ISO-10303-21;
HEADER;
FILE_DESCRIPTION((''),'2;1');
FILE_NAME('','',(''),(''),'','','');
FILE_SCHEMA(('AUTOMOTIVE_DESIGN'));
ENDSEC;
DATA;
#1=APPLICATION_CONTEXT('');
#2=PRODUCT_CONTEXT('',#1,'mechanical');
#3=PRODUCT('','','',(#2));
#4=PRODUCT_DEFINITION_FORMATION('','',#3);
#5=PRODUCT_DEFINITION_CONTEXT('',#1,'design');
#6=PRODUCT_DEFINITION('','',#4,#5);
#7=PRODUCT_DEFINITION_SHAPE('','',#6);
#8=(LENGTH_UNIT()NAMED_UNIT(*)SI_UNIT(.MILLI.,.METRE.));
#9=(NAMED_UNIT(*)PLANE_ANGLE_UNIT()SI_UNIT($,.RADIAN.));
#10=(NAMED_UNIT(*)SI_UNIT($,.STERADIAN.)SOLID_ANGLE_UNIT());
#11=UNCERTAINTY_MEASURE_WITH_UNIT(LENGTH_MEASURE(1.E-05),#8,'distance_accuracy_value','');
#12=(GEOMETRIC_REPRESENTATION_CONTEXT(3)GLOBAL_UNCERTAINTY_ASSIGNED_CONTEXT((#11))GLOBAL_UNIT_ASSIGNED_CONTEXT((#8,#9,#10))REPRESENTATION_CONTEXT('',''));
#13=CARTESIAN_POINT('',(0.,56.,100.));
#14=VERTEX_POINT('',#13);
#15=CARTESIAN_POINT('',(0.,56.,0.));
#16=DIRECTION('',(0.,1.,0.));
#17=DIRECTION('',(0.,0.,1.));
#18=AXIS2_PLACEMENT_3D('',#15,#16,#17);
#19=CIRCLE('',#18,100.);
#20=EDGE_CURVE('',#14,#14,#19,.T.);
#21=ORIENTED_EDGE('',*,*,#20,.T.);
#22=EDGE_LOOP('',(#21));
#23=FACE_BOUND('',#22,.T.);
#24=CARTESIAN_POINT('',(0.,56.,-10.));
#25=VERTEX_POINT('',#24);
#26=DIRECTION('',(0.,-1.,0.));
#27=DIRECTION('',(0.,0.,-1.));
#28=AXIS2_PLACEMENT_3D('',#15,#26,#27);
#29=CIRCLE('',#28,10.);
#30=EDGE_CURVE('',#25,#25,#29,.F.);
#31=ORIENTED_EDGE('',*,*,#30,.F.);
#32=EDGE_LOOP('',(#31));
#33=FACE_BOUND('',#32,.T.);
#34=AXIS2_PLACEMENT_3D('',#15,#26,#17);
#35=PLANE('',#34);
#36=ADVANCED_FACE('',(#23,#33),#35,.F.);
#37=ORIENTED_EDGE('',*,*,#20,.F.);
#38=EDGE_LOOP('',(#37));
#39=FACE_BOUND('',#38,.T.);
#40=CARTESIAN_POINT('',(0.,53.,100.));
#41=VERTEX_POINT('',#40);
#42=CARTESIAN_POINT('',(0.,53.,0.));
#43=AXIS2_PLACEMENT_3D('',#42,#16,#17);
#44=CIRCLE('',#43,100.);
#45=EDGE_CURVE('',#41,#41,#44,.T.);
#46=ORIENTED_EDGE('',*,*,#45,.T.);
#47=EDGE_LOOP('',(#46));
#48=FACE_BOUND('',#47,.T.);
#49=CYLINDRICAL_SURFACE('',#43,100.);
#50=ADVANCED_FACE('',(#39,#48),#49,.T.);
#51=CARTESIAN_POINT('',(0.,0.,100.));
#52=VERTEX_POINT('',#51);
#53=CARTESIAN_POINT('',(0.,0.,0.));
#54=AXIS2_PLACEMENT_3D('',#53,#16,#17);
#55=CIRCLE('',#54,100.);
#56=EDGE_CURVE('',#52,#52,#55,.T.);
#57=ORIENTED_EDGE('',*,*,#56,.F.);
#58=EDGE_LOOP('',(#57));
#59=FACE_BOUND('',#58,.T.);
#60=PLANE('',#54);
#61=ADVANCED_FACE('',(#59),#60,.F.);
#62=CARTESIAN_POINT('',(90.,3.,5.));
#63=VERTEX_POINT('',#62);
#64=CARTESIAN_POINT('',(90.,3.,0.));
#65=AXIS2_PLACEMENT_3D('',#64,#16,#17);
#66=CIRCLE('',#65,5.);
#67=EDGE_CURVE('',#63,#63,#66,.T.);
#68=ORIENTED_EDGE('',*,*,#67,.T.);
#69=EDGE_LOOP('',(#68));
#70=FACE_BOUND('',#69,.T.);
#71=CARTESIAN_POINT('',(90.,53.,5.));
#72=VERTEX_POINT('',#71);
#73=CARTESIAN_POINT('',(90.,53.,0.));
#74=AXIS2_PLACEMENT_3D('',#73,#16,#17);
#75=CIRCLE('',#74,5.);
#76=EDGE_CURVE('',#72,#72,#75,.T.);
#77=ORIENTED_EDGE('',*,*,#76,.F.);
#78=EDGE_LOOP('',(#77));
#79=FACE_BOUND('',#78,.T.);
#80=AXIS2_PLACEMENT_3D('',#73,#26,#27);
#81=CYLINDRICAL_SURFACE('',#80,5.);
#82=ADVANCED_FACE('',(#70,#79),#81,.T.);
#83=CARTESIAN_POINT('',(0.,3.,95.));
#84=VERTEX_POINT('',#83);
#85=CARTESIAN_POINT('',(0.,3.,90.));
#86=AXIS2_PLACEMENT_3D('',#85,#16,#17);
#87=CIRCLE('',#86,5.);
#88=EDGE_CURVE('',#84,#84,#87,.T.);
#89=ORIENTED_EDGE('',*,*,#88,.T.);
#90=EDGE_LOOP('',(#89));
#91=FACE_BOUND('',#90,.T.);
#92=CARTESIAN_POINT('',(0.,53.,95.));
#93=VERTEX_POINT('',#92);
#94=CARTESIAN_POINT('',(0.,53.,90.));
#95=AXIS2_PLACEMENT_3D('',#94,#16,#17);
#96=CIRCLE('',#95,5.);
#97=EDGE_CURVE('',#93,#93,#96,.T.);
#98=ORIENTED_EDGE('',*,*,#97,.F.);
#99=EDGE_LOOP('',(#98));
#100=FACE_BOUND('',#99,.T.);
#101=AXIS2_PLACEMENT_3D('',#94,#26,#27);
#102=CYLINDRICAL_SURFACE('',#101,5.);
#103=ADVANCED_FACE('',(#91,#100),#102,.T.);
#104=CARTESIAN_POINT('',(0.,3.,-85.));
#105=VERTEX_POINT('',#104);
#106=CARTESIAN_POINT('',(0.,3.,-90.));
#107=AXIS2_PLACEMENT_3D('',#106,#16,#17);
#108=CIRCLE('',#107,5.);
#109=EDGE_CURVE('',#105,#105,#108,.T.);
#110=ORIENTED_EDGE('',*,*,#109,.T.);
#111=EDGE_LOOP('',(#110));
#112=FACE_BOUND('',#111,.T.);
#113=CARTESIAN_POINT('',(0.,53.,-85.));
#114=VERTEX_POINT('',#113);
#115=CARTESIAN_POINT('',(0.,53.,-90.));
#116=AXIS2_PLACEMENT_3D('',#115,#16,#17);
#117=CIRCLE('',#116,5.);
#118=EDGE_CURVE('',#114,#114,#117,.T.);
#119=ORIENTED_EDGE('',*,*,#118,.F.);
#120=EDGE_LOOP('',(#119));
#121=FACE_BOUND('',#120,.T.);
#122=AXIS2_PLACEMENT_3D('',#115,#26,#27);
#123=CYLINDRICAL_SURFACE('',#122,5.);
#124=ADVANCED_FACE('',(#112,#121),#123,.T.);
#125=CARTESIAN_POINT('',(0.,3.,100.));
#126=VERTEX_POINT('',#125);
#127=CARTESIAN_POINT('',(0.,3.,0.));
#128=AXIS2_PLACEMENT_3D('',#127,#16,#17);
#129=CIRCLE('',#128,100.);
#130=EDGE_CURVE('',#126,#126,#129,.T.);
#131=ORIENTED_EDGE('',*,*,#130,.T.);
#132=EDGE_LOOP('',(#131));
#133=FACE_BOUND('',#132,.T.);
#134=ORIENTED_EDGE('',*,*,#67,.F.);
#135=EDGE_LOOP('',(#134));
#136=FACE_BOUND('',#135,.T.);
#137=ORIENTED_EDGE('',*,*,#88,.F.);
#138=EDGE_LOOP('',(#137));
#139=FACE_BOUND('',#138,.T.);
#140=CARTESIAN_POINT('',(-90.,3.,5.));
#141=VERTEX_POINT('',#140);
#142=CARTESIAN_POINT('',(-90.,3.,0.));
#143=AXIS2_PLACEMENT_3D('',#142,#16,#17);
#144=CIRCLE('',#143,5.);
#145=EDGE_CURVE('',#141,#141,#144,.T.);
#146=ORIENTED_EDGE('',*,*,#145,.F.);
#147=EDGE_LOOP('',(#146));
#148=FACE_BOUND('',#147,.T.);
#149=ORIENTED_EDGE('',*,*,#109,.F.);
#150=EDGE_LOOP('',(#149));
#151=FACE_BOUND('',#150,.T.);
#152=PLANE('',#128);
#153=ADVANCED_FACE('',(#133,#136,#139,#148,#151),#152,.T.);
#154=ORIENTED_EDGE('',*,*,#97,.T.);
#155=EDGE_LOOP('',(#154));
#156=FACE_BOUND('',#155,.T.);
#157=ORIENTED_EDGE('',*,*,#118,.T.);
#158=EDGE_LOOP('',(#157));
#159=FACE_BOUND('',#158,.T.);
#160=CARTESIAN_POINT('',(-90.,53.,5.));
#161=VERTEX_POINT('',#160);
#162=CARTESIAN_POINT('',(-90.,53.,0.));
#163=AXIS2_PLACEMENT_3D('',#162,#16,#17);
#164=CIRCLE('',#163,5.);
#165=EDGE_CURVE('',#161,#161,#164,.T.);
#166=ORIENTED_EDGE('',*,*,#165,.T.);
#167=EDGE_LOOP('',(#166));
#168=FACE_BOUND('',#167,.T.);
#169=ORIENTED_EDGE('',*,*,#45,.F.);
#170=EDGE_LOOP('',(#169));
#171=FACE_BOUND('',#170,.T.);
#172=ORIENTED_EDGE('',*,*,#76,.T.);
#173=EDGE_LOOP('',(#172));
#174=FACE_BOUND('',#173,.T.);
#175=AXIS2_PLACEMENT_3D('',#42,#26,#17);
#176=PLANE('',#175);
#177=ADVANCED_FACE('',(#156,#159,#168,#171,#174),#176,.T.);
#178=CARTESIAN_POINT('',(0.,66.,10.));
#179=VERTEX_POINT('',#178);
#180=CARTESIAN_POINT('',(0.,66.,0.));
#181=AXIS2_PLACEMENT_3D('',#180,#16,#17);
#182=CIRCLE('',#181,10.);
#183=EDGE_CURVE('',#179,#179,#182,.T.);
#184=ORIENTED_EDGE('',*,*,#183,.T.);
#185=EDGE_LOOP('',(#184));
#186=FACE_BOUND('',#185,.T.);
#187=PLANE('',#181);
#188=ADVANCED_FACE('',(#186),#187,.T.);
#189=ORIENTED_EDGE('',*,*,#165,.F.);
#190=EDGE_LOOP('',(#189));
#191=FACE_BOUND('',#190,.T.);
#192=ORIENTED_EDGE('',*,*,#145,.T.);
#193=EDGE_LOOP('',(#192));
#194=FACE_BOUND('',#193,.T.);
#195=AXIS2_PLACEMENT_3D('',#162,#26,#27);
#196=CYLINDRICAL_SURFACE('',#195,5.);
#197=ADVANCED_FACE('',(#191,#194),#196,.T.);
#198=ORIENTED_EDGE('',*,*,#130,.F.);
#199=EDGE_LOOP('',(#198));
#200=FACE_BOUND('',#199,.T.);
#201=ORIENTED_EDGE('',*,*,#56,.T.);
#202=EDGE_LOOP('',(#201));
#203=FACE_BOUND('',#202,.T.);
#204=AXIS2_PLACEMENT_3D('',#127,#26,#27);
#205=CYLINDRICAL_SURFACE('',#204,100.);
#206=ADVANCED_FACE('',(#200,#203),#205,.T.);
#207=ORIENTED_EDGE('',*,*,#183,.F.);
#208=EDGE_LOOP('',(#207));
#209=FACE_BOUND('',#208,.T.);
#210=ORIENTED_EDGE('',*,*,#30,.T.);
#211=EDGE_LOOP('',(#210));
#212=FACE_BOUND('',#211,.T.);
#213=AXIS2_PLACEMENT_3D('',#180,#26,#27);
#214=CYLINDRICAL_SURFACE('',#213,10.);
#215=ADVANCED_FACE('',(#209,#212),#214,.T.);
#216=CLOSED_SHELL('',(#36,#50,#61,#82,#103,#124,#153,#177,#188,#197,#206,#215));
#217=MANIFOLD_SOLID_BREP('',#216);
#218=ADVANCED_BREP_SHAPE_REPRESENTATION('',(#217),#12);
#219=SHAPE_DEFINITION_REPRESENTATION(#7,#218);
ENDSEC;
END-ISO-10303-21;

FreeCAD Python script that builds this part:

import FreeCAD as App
import Part
import Sketcher
Q = App.Units.Quantity

doc = App.newDocument("Part")
body = doc.addObject("PartDesign::Body", "Body")

sketch1 = doc.addObject("Sketcher::SketchObject", "Sketch")
body.addObject(sketch1)
sketch1.AttachmentSupport = (doc.XZ_Plane, [""])
sketch1.MapMode = "FlatFace"
sketch1.addGeometry(Part.Circle(App.Vector(0, 0, 0), App.Vector(0, 0, 1), 100), False)
sketch1.addConstraint(Sketcher.Constraint("Coincident", 0, 3, -1, 1))
sketch1.addConstraint(Sketcher.Constraint("Diameter", 0, Q("200 mm")))
pad1 = doc.addObject("PartDesign::Pad", "Pad")
body.addObject(pad1)
pad1.Profile = sketch1
pad1.Length = 3
pad1.Reversed = True

sketch2 = doc.addObject("Sketcher::SketchObject", "Sketch001")
body.addObject(sketch2)
sketch2.AttachmentSupport = (doc.XZ_Plane, [""])
sketch2.MapMode = "FlatFace"
sketch2.AttachmentOffset = App.Placement(App.Vector(0, 0, -3), App.Rotation())
sketch2.addGeometry(Part.Circle(App.Vector(-90, 0, 0), App.Vector(0, 0, 1), 5), False)
sketch2.addGeometry(Part.Circle(App.Vector(0, -90, 0), App.Vector(0, 0, 1), 5), False)
sketch2.addGeometry(Part.Circle(App.Vector(90, 0, 0), App.Vector(0, 0, 1), 5), False)
sketch2.addGeometry(Part.Circle(App.Vector(0, 90, 0), App.Vector(0, 0, 1), 5), False)
sketch2.addConstraint(Sketcher.Constraint("Equal", 0, 1))
sketch2.addConstraint(Sketcher.Constraint("Equal", 1, 2))
sketch2.addConstraint(Sketcher.Constraint("Equal", 2, 3))
sketch2.addConstraint(Sketcher.Constraint("Symmetric", 0, 3, 2, 3, -1, 1))
sketch2.addConstraint(Sketcher.Constraint("Symmetric", 1, 3, 3, 3, -1, 1))
sketch2.addConstraint(Sketcher.Constraint("PointOnObject", 0, 3, -1))
sketch2.addConstraint(Sketcher.Constraint("PointOnObject", 1, 3, -2))
sketch2.addConstraint(Sketcher.Constraint("Diameter", 0, Q("10 mm")))
sketch2.addConstraint(Sketcher.Constraint("DistanceX", 0, 3, -1, 1, Q("90 mm")))
sketch2.addConstraint(Sketcher.Constraint("DistanceY", 1, 3, -1, 1, Q("90 mm")))
pad2 = doc.addObject("PartDesign::Pad", "Pad001")
body.addObject(pad2)
pad2.Profile = sketch2
pad2.Length = 50
pad2.Reversed = True
doc.recompute()

datumplane = doc.addObject("PartDesign::Plane", "DatumPlane")
body.addObject(datumplane)
datumplane.AttachmentSupport = (doc.XZ_Plane, [""])
datumplane.MapMode = "FlatFace"
datumplane.AttachmentOffset = App.Placement(App.Vector(0, 0, -28), App.Rotation())
mirrored = doc.addObject("PartDesign::Mirrored", "Mirrored")
body.addObject(mirrored)
mirrored.Originals = [pad1]
mirrored.MirrorPlane = (datumplane, [""])
body.Tip = mirrored

sketch3 = doc.addObject("Sketcher::SketchObject", "Sketch002")
body.addObject(sketch3)
sketch3.AttachmentSupport = (doc.XZ_Plane, [""])
sketch3.MapMode = "FlatFace"
sketch3.AttachmentOffset = App.Placement(App.Vector(0, 0, -56), App.Rotation())
sketch3.addGeometry(Part.Circle(App.Vector(0, 0, 0), App.Vector(0, 0, 1), 10), False)
sketch3.addConstraint(Sketcher.Constraint("Coincident", 0, 3, -1, 1))
sketch3.addConstraint(Sketcher.Constraint("Diameter", 0, Q("20 mm")))
pad3 = doc.addObject("PartDesign::Pad", "Pad002")
body.addObject(pad3)
pad3.Profile = sketch3
pad3.Length = 10
pad3.Reversed = True

doc.recompute()
